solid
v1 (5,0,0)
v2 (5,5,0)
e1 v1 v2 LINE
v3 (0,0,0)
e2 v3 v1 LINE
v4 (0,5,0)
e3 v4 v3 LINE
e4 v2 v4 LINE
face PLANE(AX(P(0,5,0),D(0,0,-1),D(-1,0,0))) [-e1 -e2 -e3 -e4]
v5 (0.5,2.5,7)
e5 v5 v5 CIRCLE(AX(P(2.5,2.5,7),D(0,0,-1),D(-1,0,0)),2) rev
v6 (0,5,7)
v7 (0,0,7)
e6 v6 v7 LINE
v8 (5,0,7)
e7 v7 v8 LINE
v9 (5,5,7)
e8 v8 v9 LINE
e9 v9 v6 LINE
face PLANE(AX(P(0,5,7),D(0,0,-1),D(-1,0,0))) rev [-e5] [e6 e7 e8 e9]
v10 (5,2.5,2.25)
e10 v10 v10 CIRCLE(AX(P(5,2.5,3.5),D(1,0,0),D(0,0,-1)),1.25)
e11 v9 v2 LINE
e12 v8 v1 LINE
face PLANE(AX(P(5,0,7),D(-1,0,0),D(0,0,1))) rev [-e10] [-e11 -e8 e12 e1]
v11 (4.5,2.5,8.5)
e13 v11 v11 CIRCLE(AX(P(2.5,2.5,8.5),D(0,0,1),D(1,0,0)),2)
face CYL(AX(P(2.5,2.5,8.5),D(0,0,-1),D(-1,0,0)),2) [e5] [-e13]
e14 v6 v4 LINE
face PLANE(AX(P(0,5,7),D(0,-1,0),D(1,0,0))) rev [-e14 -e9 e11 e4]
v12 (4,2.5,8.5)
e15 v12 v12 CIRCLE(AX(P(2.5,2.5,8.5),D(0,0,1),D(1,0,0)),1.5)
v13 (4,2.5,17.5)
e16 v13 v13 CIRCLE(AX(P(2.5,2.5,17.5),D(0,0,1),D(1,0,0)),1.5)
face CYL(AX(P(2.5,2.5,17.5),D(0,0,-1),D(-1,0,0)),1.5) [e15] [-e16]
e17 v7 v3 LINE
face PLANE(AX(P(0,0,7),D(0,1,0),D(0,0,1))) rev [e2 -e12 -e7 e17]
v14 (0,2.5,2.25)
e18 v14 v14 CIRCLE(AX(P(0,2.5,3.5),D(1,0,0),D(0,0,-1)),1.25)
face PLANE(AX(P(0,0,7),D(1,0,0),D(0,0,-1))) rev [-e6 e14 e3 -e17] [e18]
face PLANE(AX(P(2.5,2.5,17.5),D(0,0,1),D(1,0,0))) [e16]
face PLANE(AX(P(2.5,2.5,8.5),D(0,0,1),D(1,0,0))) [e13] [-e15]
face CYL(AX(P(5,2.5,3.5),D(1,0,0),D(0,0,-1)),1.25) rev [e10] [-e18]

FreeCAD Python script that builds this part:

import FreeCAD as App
import Part
import Sketcher

doc = App.newDocument("Part")
body = doc.addObject("PartDesign::Body", "Body")

# Sketch on XY plane
sketch1 = doc.addObject("Sketcher::SketchObject", "Sketch")
body.addObject(sketch1)
sketch1.AttachmentSupport = (doc.XY_Plane, [""])
sketch1.MapMode = "FlatFace"
sketch1.addGeometry([
    Part.LineSegment(App.Vector(0, 5, 0), App.Vector(0, 0, 0)),
    Part.LineSegment(App.Vector(0, 0, 0), App.Vector(5, 0, 0)),
    Part.LineSegment(App.Vector(5, 0, 0), App.Vector(5, 5, 0)),
    Part.LineSegment(App.Vector(5, 5, 0), App.Vector(0, 5, 0)),
], False)
sketch1.addConstraint([
    Sketcher.Constraint("Coincident", 0, 2, 1, 1),
    Sketcher.Constraint("Coincident", 1, 2, 2, 1),
    Sketcher.Constraint("Coincident", 2, 2, 3, 1),
    Sketcher.Constraint("Coincident", 3, 2, 0, 1),
    Sketcher.Constraint("Vertical", 0),
    Sketcher.Constraint("Horizontal", 1),
    Sketcher.Constraint("Vertical", 2),
    Sketcher.Constraint("Horizontal", 3),
    Sketcher.Constraint("Coincident", 0, 2, -1, 1),
    Sketcher.Constraint("Equal", 3, 0),
    Sketcher.Constraint("DistanceX", 1, 1, 1, 2, 5.0),
])
pad1 = doc.addObject("PartDesign::Pad", "Pad")
body.addObject(pad1)
pad1.Profile = sketch1
pad1.Length = 7

# Sketch on XY plane
sketch2 = doc.addObject("Sketcher::SketchObject", "Sketch001")
body.addObject(sketch2)
sketch2.AttachmentSupport = (doc.XY_Plane, [""])
sketch2.MapMode = "FlatFace"
sketch2.AttachmentOffset = App.Placement(App.Vector(0, 0, 7), App.Rotation())
sketch2.addGeometry(Part.Circle(App.Vector(2.5, 2.5, 0), App.Vector(0, 0, 1), 2), False)
sketch2.addConstraint([
    Sketcher.Constraint("Diameter", 0, 4.0),
    Sketcher.Constraint("DistanceX", -1, 1, 0, 3, 2.5),
    Sketcher.Constraint("DistanceY", -1, 1, 0, 3, 2.5),
])
pad2 = doc.addObject("PartDesign::Pad", "Pad001")
body.addObject(pad2)
pad2.Profile = sketch2
pad2.Length = 1.5

# Sketch on XY plane
sketch3 = doc.addObject("Sketcher::SketchObject", "Sketch002")
body.addObject(sketch3)
sketch3.AttachmentSupport = (doc.XY_Plane, [""])
sketch3.MapMode = "FlatFace"
sketch3.AttachmentOffset = App.Placement(App.Vector(0, 0, 8.5), App.Rotation())
sketch3.addGeometry(Part.Circle(App.Vector(2.5, 2.5, 0), App.Vector(0, 0, 1), 1.5), False)
sketch3.addConstraint([
    Sketcher.Constraint("Diameter", 0, 3.0),
    Sketcher.Constraint("DistanceX", -1, 1, 0, 3, 2.5),
    Sketcher.Constraint("DistanceY", -1, 1, 0, 3, 2.5),
])
pad3 = doc.addObject("PartDesign::Pad", "Pad002")
body.addObject(pad3)
pad3.Profile = sketch3
pad3.Length = 9

# Sketch on YZ plane
sketch4 = doc.addObject("Sketcher::SketchObject", "Sketch003")
body.addObject(sketch4)
sketch4.AttachmentSupport = (doc.YZ_Plane, [""])
sketch4.MapMode = "FlatFace"
sketch4.AttachmentOffset = App.Placement(App.Vector(0, 0, 5), App.Rotation())
sketch4.addGeometry(Part.Circle(App.Vector(2.5, 3.5, 0), App.Vector(0, 0, 1), 1.2), False)
sketch4.addConstraint([
    Sketcher.Constraint("Diameter", 0, 2.5),
    Sketcher.Constraint("DistanceX", -1, 1, 0, 3, 2.5),
    Sketcher.Constraint("DistanceY", -1, 1, 0, 3, 3.5),
])
doc.recompute()
hole = doc.addObject("PartDesign::Hole", "Hole")
body.addObject(hole)
hole.Profile = sketch4
hole.ThreadType = "None"
hole.Diameter = 2.5
hole.DepthType = "Dimension"
hole.Depth = 7.5
hole.DrillPoint = "Angled"
hole.DrillPointAngle = 118

doc.recompute()
